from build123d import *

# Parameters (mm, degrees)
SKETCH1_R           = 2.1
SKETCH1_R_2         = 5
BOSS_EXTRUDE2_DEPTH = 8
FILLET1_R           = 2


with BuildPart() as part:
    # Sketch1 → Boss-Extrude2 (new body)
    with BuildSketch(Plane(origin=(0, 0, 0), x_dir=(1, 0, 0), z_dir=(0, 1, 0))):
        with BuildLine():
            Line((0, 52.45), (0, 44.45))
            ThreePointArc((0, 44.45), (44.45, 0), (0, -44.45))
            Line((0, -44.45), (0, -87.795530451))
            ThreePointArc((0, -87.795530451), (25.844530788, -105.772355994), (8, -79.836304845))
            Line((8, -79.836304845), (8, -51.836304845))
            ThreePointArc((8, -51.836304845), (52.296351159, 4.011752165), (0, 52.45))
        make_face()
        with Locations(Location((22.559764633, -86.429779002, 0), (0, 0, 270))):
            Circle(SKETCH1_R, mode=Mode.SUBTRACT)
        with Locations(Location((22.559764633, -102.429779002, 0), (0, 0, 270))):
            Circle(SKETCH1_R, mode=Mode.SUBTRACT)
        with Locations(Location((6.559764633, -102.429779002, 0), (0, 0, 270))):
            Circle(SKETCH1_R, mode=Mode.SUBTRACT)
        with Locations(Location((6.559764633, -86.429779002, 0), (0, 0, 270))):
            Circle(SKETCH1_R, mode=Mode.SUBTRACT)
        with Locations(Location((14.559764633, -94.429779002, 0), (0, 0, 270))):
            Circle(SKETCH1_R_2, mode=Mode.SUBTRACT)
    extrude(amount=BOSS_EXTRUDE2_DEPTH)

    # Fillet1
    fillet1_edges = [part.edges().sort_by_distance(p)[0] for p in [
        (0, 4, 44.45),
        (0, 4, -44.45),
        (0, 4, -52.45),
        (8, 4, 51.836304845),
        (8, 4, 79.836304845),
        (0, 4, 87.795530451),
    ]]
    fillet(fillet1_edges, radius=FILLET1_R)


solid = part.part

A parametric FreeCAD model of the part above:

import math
import FreeCAD as App
import Part
import Sketcher

V = App.Vector
Q = App.Units.Quantity


def edges_at(feature, points):
    """Names of the edges that pass closest to the given points."""
    edges = feature.Shape.Edges
    near = lambda p: min(range(len(edges)), key=lambda i: edges[i].distToShape(Part.Vertex(*p))[0])
    return sorted({f"Edge{near(p) + 1}" for p in points})

doc = App.newDocument("Part")
body = doc.addObject("PartDesign::Body", "Body")

# Sketch on XZ plane
sketch1 = body.newObject("Sketcher::SketchObject", "Sketch")
sketch1.AttachmentSupport = (doc.getObject("XZ_Plane"), [""])
sketch1.MapMode = "FlatFace"
sketch1.addGeometry(Part.LineSegment(V(0, -52.5, 0), V(0, -44.5, 0)), False)
sketch1.addGeometry(Part.ArcOfCircle(Part.Circle(V(0, 0, 0), V(0, 0, 1), 44.5), math.radians(-90), math.radians(90)), False)
sketch1.addGeometry(Part.LineSegment(V(0, 44.5, 0), V(0, 87.8, 0)), False)
sketch1.addGeometry(Part.ArcOfCircle(Part.Circle(V(14.6, 94.4, 0), V(0, 0, 1), 16), math.radians(-114), math.radians(204)), False)
sketch1.addGeometry(Part.LineSegment(V(8, 79.8, 0), V(8, 51.8, 0)), False)
sketch1.addGeometry(Part.ArcOfCircle(Part.Circle(V(0, 0, 0), V(0, 0, 1), 52.5), math.radians(-90), math.radians(81)), False)
sketch1.addGeometry(Part.Circle(V(6.6, 102.4, 0), V(0, 0, 1), 2.1), False)
sketch1.addGeometry(Part.Circle(V(22.6, 102.4, 0), V(0, 0, 1), 2.1), False)
sketch1.addGeometry(Part.Circle(V(6.6, 86.4, 0), V(0, 0, 1), 2.1), False)
sketch1.addGeometry(Part.Circle(V(14.6, 94.4, 0), V(0, 0, 1), 5), False)
sketch1.addGeometry(Part.Circle(V(22.6, 86.4, 0), V(0, 0, 1), 2.1), False)
sketch1.addConstraint(Sketcher.Constraint("Coincident", 0, 2, 1, 1))
sketch1.addConstraint(Sketcher.Constraint("Coincident", 1, 2, 2, 1))
sketch1.addConstraint(Sketcher.Constraint("Coincident", 2, 2, 3, 2))
sketch1.addConstraint(Sketcher.Constraint("Coincident", 3, 1, 4, 1))
sketch1.addConstraint(Sketcher.Constraint("Coincident", 4, 2, 5, 2))
sketch1.addConstraint(Sketcher.Constraint("Coincident", 5, 1, 0, 1))
sketch1.addConstraint(Sketcher.Constraint("Vertical", 0))
sketch1.addConstraint(Sketcher.Constraint("Vertical", 2))
sketch1.addConstraint(Sketcher.Constraint("Vertical", 4))
sketch1.addConstraint(Sketcher.Constraint("Coincident", 1, 3, -1, 1))
sketch1.addConstraint(Sketcher.Constraint("Coincident", 5, 3, -1, 1))
sketch1.addConstraint(Sketcher.Constraint("Coincident", 9, 3, 3, 3))
sketch1.addConstraint(Sketcher.Constraint("Equal", 6, 7))
sketch1.addConstraint(Sketcher.Constraint("Equal", 7, 8))
sketch1.addConstraint(Sketcher.Constraint("Equal", 8, 10))
sketch1.addConstraint(Sketcher.Constraint("PointOnObject", 0, 2, -2))
sketch1.addConstraint(Sketcher.Constraint("PointOnObject", 1, 2, -2))
sketch1.addConstraint(Sketcher.Constraint("Horizontal", 6, 3, 7, 3))
sketch1.addConstraint(Sketcher.Constraint("Horizontal", 8, 3, 10, 3))
sketch1.addConstraint(Sketcher.Constraint("Vertical", 6, 3, 8, 3))
sketch1.addConstraint(Sketcher.Constraint("Vertical", 7, 3, 10, 3))
sketch1.addConstraint(Sketcher.Constraint("Diameter", 9, Q("10 mm")))
sketch1.addConstraint(Sketcher.Constraint("Radius", 3, Q("16 mm")))
sketch1.addConstraint(Sketcher.Constraint("Diameter", 6, Q("4.2 mm")))
sketch1.addConstraint(Sketcher.Constraint("DistanceY", 0, 1, 0, 2, Q("8 mm")))
sketch1.addConstraint(Sketcher.Constraint("DistanceY", 4, 2, 4, 1, Q("28 mm")))
sketch1.addConstraint(Sketcher.Constraint("Radius", 1, Q("44.45 mm")))
sketch1.addConstraint(Sketcher.Constraint("DistanceX", -1, 1, 3, 1, Q("8 mm")))
sketch1.addConstraint(Sketcher.Constraint("DistanceX", 6, 3, 3, 3, Q("8 mm")))
sketch1.addConstraint(Sketcher.Constraint("DistanceY", 3, 3, 6, 3, Q("8 mm")))
sketch1.addConstraint(Sketcher.Constraint("DistanceX", 3, 3, 7, 3, Q("8 mm")))
sketch1.addConstraint(Sketcher.Constraint("DistanceY", 8, 3, 3, 3, Q("8 mm")))
sketch1.addConstraint(Sketcher.Constraint("DistanceY", 2, 1, 2, 2, Q("43.34553 mm")))
pad1 = body.newObject("PartDesign::Pad", "Pad")
pad1.Profile = sketch1
pad1.Length = 8
pad1.Reversed = True
doc.recompute()

fillet = body.newObject("PartDesign::Fillet", "Fillet")
fillet.Base = (pad1, edges_at(pad1, [
    (0, 4, 44.45),
    (0, 4, -44.45),
    (0, 4, -52.45),
    (8, 4, 51.836),
    (8, 4, 79.836),
    (0, 4, 87.796),
]))
fillet.Radius = 2

doc.recompute()
